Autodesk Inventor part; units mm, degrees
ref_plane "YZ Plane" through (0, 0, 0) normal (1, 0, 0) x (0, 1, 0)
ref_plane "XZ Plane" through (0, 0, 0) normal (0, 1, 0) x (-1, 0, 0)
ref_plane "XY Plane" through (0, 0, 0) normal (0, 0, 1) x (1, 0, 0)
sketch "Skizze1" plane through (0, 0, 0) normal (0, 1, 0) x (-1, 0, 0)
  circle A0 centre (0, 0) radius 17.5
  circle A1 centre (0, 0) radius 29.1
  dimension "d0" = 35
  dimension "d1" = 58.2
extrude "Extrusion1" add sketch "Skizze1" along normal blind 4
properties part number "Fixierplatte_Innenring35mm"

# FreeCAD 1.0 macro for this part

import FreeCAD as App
import Part
import Sketcher

doc = App.newDocument("Part")
body = doc.addObject("PartDesign::Body", "Body")

# Sketch on XZ plane
sketch1 = body.newObject("Sketcher::SketchObject", "Sketch")
sketch1.AttachmentSupport = (doc.getObject("XZ_Plane"), [""])
sketch1.MapMode = "FlatFace"
sketch1.addGeometry(Part.Circle(App.Vector(0, 0, 0), App.Vector(0, 0, 1), 29), False)
sketch1.addGeometry(Part.Circle(App.Vector(0, 0, 0), App.Vector(0, 0, 1), 18), False)
sketch1.addConstraint(Sketcher.Constraint("Coincident", 0, 3, -1, 1))
sketch1.addConstraint(Sketcher.Constraint("Coincident", 1, 3, -1, 1))
sketch1.addConstraint(Sketcher.Constraint("Diameter", 1, 35.0))
sketch1.addConstraint(Sketcher.Constraint("Diameter", 0, 58.2))
pad1 = body.newObject("PartDesign::Pad", "Pad")
pad1.Profile = sketch1
pad1.Length = 4
pad1.Reversed = True

doc.recompute()
